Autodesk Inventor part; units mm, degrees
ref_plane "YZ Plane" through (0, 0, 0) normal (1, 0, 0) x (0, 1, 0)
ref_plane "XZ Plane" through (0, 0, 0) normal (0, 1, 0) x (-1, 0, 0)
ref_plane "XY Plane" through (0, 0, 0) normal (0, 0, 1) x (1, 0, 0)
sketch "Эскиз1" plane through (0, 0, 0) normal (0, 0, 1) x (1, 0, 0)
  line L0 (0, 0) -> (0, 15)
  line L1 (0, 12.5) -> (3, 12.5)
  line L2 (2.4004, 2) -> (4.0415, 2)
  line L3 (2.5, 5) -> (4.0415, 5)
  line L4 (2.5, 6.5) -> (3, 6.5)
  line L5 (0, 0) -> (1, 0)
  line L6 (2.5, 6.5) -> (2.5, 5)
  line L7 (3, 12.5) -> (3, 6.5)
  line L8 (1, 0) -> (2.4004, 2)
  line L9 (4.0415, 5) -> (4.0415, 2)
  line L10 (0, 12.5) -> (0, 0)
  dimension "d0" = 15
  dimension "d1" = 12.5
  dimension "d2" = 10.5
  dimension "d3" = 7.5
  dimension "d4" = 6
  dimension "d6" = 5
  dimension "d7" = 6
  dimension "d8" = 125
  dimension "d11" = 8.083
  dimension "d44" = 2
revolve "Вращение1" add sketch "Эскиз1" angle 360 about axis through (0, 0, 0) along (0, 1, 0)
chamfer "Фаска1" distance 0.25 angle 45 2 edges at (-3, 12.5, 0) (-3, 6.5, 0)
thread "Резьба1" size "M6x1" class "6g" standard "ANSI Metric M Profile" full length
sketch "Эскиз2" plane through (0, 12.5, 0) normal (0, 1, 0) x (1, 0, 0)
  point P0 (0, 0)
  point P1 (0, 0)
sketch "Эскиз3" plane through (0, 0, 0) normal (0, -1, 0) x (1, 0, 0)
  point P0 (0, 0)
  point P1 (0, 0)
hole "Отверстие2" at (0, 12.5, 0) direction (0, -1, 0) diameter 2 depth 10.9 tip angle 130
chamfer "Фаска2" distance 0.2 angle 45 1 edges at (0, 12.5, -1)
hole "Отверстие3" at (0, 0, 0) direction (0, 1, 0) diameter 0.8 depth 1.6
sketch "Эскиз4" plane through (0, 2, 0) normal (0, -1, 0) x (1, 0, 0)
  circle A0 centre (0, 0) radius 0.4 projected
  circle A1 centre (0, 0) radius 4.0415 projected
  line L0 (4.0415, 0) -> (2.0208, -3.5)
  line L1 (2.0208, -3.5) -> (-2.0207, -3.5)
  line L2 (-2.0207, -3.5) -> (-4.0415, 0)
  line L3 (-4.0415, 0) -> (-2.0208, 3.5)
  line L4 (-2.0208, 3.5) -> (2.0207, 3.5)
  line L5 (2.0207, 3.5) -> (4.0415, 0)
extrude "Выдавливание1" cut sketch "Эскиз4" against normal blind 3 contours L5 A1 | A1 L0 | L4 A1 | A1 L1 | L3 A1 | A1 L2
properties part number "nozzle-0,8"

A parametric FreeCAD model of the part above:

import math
import FreeCAD as App
import Part
import Sketcher

V = App.Vector
Q = App.Units.Quantity


def edges_at(feature, points):
    """Names of the edges that pass closest to the given points."""
    edges = feature.Shape.Edges
    near = lambda p: min(range(len(edges)), key=lambda i: edges[i].distToShape(Part.Vertex(*p))[0])
    return sorted({f"Edge{near(p) + 1}" for p in points})


def add_polygon(sketch, points):
    """Adds a closed chain of lines whose ends are joined by coincident constraints."""
    first, n = sketch.GeometryCount, len(points)
    for a, b in zip(points, points[1:] + points[:1]):
        sketch.addGeometry(Part.LineSegment(App.Vector(*a, 0), App.Vector(*b, 0)), False)
    for i in range(n):
        sketch.addConstraint(Sketcher.Constraint("Coincident", first + i, 2, first + (i + 1) % n, 1))

doc = App.newDocument("Part")
params = doc.addObject("Spreadsheet::Sheet", "Params")
for row, (alias, value) in enumerate([
    ("sketch1_height", "6 mm"),
    ("sketch1_height2", "12.5 mm"),
    ("sketch1_width", "1 mm"),
    ("sketch1_width2", "0.5 mm"),
    ("revolution_angle", "360 deg"),
    ("chamfer_size", "0.25 mm"),
    ("sketch2_diameter", "2 mm"),
    ("hole_diameter", "2 mm"),
    ("hole_depth", "10.9 mm"),
    ("chamfer2_size", "0.2 mm"),
    ("sketch3_diameter", "0.8 mm"),
    ("hole2_diameter", "0.8 mm"),
    ("hole2_depth", "1.6 mm"),
    ("pocket1_length", "3 mm"),
], start=1):
    params.set(f"A{row}", alias)
    params.set(f"B{row}", "=" + value)
    params.setAlias(f"B{row}", alias)

body = doc.addObject("PartDesign::Body", "Body")

sketch1 = body.newObject("Sketcher::SketchObject", "Sketch")
sketch1.AttachmentSupport = (doc.getObject("XY_Plane"), [""])
sketch1.MapMode = "FlatFace"
add_polygon(sketch1, [(0, 12.5), (0, 0), (1, 0), (2.4, 2), (4, 2), (4, 5), (2.5, 5), (2.5, 6.5), (3, 6.5), (3, 12.5)])
sketch1.addConstraint([
    Sketcher.Constraint("Vertical", 0),
    Sketcher.Constraint("Horizontal", 1),
    Sketcher.Constraint("Horizontal", 3),
    Sketcher.Constraint("Vertical", 4),
    Sketcher.Constraint("Horizontal", 5),
    Sketcher.Constraint("Vertical", 6),
    Sketcher.Constraint("Horizontal", 7),
    Sketcher.Constraint("Vertical", 8),
    Sketcher.Constraint("Horizontal", 9),
    Sketcher.Constraint("Coincident", 0, 2, -1, 1),
    Sketcher.Constraint("Equal", 9, 4),
    Sketcher.Constraint("DistanceY", 8, 1, 8, 2, 6.0),
    Sketcher.Constraint("DistanceY", 0, 2, 0, 1, 12.5),
    Sketcher.Constraint("DistanceY", -1, 1, 2, 2, 2.0),
    Sketcher.Constraint("DistanceY", -1, 1, 4, 2, 5.0),
    Sketcher.Constraint("DistanceX", 1, 1, 1, 2, 1.0),
    Sketcher.Constraint("Angle", 2, Q("55.0003 deg")),
    Sketcher.Constraint("DistanceX", 7, 1, 7, 2, 0.5),
    Sketcher.Constraint("DistanceX", 3, 1, 3, 2, 1.641),
])
sketch1.setExpression("Constraints[21]", "Params.sketch1_height")
sketch1.setExpression("Constraints[22]", "Params.sketch1_height2")
sketch1.setExpression("Constraints[25]", "Params.sketch1_width")
sketch1.setExpression("Constraints[27]", "Params.sketch1_width2")
revolution = body.newObject("PartDesign::Revolution", "Revolution")
revolution.Profile = sketch1
revolution.ReferenceAxis = (sketch1, ["V_Axis"])
revolution.setExpression("Angle", "Params.revolution_angle")
doc.recompute()

chamfer = body.newObject("PartDesign::Chamfer", "Chamfer")
chamfer.Base = (revolution, edges_at(revolution, [(-3, 12.5, 0), (-3, 6.5, 0)]))
chamfer.setExpression("Size", "Params.chamfer_size")

sketch2 = body.newObject("Sketcher::SketchObject", "Sketch001")
sketch2.AttachmentSupport = (doc.getObject("XZ_Plane"), [""])
sketch2.MapMode = "FlatFace"
sketch2.AttachmentOffset = App.Placement(V(0, 0, -12.5), App.Rotation())
sketch2.addGeometry(Part.Circle(V(0, 0, 0), V(0, 0, 1), 1), False)
sketch2.addConstraint([
    Sketcher.Constraint("Coincident", 0, 3, -1, 1),
    Sketcher.Constraint("Diameter", 0, 2.0),
])
sketch2.setExpression("Constraints[1]", "Params.sketch2_diameter")
doc.recompute()
hole = body.newObject("PartDesign::Hole", "Hole")
hole.Profile = sketch2
hole.ThreadType = "None"
hole.setExpression("Diameter", "Params.hole_diameter")
hole.DepthType = "Dimension"
hole.setExpression("Depth", "Params.hole_depth")
hole.DrillPoint = "Angled"
hole.DrillPointAngle = 130
hole.Reversed = True
doc.recompute()

chamfer2 = body.newObject("PartDesign::Chamfer", "Chamfer001")
chamfer2.Base = (hole, edges_at(hole, [(0, 12.5, -1)]))
chamfer2.setExpression("Size", "Params.chamfer2_size")

sketch3 = body.newObject("Sketcher::SketchObject", "Sketch002")
sketch3.AttachmentSupport = (doc.getObject("XZ_Plane"), [""])
sketch3.MapMode = "FlatFace"
sketch3.addGeometry(Part.Circle(V(0, 0, 0), V(0, 0, 1), 0.4), False)
sketch3.addConstraint([
    Sketcher.Constraint("Coincident", 0, 3, -1, 1),
    Sketcher.Constraint("Diameter", 0, 0.8),
])
sketch3.setExpression("Constraints[1]", "Params.sketch3_diameter")
doc.recompute()
hole2 = body.newObject("PartDesign::Hole", "Hole001")
hole2.Profile = sketch3
hole2.ThreadType = "None"
hole2.setExpression("Diameter", "Params.hole2_diameter")
hole2.DepthType = "Dimension"
hole2.setExpression("Depth", "Params.hole2_depth")
hole2.DrillPoint = "Flat"

sketch4 = body.newObject("Sketcher::SketchObject", "Sketch003")
sketch4.AttachmentSupport = (doc.getObject("XZ_Plane"), [""])
sketch4.MapMode = "FlatFace"
sketch4.AttachmentOffset = App.Placement(V(0, 0, -2), App.Rotation())
sketch4.addGeometry([
    Part.LineSegment(V(2, 3.5, 0), V(4, 0, 0)),
    Part.ArcOfCircle(Part.Circle(V(0, 0, 0), V(0, 0, 1), 4), math.radians(0), math.radians(60)),
    Part.ArcOfCircle(Part.Circle(V(0, 0, 0), V(0, 0, 1), 4), math.radians(-60), math.radians(0)),
    Part.LineSegment(V(4, 0, 0), V(2, -3.5, 0)),
    Part.LineSegment(V(-2, 3.5, 0), V(2, 3.5, 0)),
    Part.ArcOfCircle(Part.Circle(V(0, 0, 0), V(0, 0, 1), 4), math.radians(60), math.radians(120)),
    Part.ArcOfCircle(Part.Circle(V(0, 0, 0), V(0, 0, 1), 4), math.radians(-120), math.radians(-60)),
    Part.LineSegment(V(-2, -3.5, 0), V(2, -3.5, 0)),
    Part.LineSegment(V(-4, 0, 0), V(-2, 3.5, 0)),
    Part.ArcOfCircle(Part.Circle(V(0, 0, 0), V(0, 0, 1), 4), math.radians(120), math.radians(180)),
    Part.ArcOfCircle(Part.Circle(V(0, 0, 0), V(0, 0, 1), 4), math.radians(180), math.radians(240)),
    Part.LineSegment(V(-4, 0, 0), V(-2, -3.5, 0)),
], False)
sketch4.addConstraint([
    Sketcher.Constraint("Coincident", 0, 1, 1, 2),
    Sketcher.Constraint("Coincident", 1, 1, 0, 2),
    Sketcher.Constraint("Coincident", 2, 1, 3, 2),
    Sketcher.Constraint("Coincident", 3, 1, 2, 2),
    Sketcher.Constraint("Coincident", 4, 1, 5, 2),
    Sketcher.Constraint("Coincident", 5, 1, 4, 2),
    Sketcher.Constraint("Coincident", 6, 1, 7, 1),
    Sketcher.Constraint("Coincident", 7, 2, 6, 2),
    Sketcher.Constraint("Coincident", 8, 1, 9, 2),
    Sketcher.Constraint("Coincident", 9, 1, 8, 2),
    Sketcher.Constraint("Coincident", 10, 1, 11, 1),
    Sketcher.Constraint("Coincident", 11, 2, 10, 2),
    Sketcher.Constraint("Horizontal", 4),
    Sketcher.Constraint("Horizontal", 7),
    Sketcher.Constraint("Coincident", 1, 3, -1, 1),
    Sketcher.Constraint("Coincident", 2, 3, -1, 1),
    Sketcher.Constraint("Coincident", 5, 3, -1, 1),
    Sketcher.Constraint("Coincident", 6, 3, -1, 1),
    Sketcher.Constraint("Coincident", 9, 3, -1, 1),
    Sketcher.Constraint("Coincident", 10, 3, -1, 1),
    Sketcher.Constraint("Coincident", 3, 1, 1, 1),
    Sketcher.Constraint("Coincident", 5, 1, 0, 1),
    Sketcher.Constraint("Coincident", 7, 2, 2, 1),
    Sketcher.Constraint("Coincident", 9, 1, 4, 1),
    Sketcher.Constraint("Coincident", 10, 1, 8, 1),
    Sketcher.Constraint("PointOnObject", 1, 1, -1),
    Sketcher.Constraint("PointOnObject", 8, 1, -1),
    Sketcher.Constraint("Parallel", 3, 8),
    Sketcher.Constraint("Parallel", 0, 11),
    Sketcher.Constraint("Angle", 0, Q("-59.999 deg")),
    Sketcher.Constraint("DistanceY", -1, 1, 0, 1, 3.5),
])
pocket1 = body.newObject("PartDesign::Pocket", "Pocket")
pocket1.Profile = sketch4
pocket1.setExpression("Length", "Params.pocket1_length")

doc.recompute()
